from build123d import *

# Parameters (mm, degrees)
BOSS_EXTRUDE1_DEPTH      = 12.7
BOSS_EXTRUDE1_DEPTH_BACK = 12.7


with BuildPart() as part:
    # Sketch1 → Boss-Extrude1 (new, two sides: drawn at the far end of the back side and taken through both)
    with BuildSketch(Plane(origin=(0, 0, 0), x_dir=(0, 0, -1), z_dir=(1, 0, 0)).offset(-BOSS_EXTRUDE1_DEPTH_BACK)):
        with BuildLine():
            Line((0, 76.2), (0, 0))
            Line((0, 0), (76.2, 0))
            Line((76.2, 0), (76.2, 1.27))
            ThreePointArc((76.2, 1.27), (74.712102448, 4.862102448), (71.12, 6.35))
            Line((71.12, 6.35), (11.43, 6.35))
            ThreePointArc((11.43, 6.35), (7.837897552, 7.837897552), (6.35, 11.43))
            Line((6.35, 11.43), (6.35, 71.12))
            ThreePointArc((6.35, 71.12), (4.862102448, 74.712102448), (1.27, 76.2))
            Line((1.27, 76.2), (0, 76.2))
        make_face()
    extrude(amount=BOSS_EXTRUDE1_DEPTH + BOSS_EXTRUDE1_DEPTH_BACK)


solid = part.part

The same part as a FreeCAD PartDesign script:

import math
import FreeCAD as App
import Part
import Sketcher

V = App.Vector
Q = App.Units.Quantity

doc = App.newDocument("Part")
params = doc.addObject("Spreadsheet::Sheet", "Params")
for row, (alias, value) in enumerate([
    ("sketch1_radius", "0.2 in"),
    ("sketch1_width", "3 in"),
    ("sketch1_width2", "0.05 in"),
    ("pad1_length", "0.5 in"),
    ("pad1_length2", "0.5 in"),
], start=1):
    params.set(f"A{row}", alias)
    params.set(f"B{row}", "=" + value)
    params.setAlias(f"B{row}", alias)

body = doc.addObject("PartDesign::Body", "Body")

# Sketch on YZ plane
sketch1 = doc.addObject("Sketcher::SketchObject", "Sketch")
body.addObject(sketch1)
sketch1.AttachmentSupport = (doc.YZ_Plane, [""])
sketch1.MapMode = "FlatFace"
sketch1.addGeometry([
    Part.LineSegment(V(76.2, 0, 0), V(0, 0, 0)),  # 0
    Part.LineSegment(V(0, 0, 0), V(0, -76.2, 0)),  # 1
    Part.LineSegment(V(0, -76.2, 0), V(1.3, -76.2, 0)),  # 2
    Part.ArcOfCircle(Part.Circle(V(1.3, -71.1, 0), V(0, 0, 1), 5.1), math.radians(-90), math.radians(0)),  # 3
    Part.LineSegment(V(6.3, -71.1, 0), V(6.3, -11.4, 0)),  # 4
    Part.ArcOfCircle(Part.Circle(V(11.4, -11.4, 0), V(0, 0, 1), 5.1), math.radians(90), math.radians(180)),  # 5
    Part.LineSegment(V(11.4, -6.3, 0), V(71.1, -6.3, 0)),  # 6
    Part.ArcOfCircle(Part.Circle(V(71.1, -1.3, 0), V(0, 0, 1), 5.1), math.radians(-90), math.radians(0)),  # 7
    Part.LineSegment(V(76.2, -1.3, 0), V(76.2, 0, 0)),  # 8
], False)
sketch1.addConstraint([
    Sketcher.Constraint("Coincident", 0, 2, 1, 1),
    Sketcher.Constraint("Coincident", 1, 2, 2, 1),
    Sketcher.Constraint("Tangent", 2, 2, 3, 1),
    Sketcher.Constraint("Tangent", 3, 2, 4, 1),
    Sketcher.Constraint("Tangent", 4, 2, 5, 2),
    Sketcher.Constraint("Tangent", 5, 1, 6, 1),
    Sketcher.Constraint("Tangent", 6, 2, 7, 1),
    Sketcher.Constraint("Tangent", 7, 2, 8, 1),
    Sketcher.Constraint("Coincident", 8, 2, 0, 1),
    Sketcher.Constraint("Horizontal", 0),
    Sketcher.Constraint("Vertical", 1),
    Sketcher.Constraint("Horizontal", 2),
    Sketcher.Constraint("Vertical", 4),
    Sketcher.Constraint("Horizontal", 6),
    Sketcher.Constraint("Vertical", 8),
    Sketcher.Constraint("Coincident", 0, 2, -1, 1),
    Sketcher.Constraint("Equal", 3, 5),
    Sketcher.Constraint("Equal", 5, 7),
    Sketcher.Constraint("Equal", 0, 1),
    Sketcher.Constraint("Equal", 6, 4),
    Sketcher.Constraint("Radius", 3, Q("0.2 in")),
    Sketcher.Constraint("DistanceX", 0, 2, 0, 1, Q("3 in")),
    Sketcher.Constraint("DistanceX", 2, 1, 2, 2, Q("0.05 in")),
])
sketch1.setExpression("Constraints[20]", "Params.sketch1_radius")
sketch1.setExpression("Constraints[21]", "Params.sketch1_width")
sketch1.setExpression("Constraints[22]", "Params.sketch1_width2")
pad1 = doc.addObject("PartDesign::Pad", "Pad")
body.addObject(pad1)
pad1.Profile = sketch1
pad1.Type = "TwoLengths"
pad1.setExpression("Length", "Params.pad1_length")
pad1.setExpression("Length2", "Params.pad1_length2")

doc.recompute()
